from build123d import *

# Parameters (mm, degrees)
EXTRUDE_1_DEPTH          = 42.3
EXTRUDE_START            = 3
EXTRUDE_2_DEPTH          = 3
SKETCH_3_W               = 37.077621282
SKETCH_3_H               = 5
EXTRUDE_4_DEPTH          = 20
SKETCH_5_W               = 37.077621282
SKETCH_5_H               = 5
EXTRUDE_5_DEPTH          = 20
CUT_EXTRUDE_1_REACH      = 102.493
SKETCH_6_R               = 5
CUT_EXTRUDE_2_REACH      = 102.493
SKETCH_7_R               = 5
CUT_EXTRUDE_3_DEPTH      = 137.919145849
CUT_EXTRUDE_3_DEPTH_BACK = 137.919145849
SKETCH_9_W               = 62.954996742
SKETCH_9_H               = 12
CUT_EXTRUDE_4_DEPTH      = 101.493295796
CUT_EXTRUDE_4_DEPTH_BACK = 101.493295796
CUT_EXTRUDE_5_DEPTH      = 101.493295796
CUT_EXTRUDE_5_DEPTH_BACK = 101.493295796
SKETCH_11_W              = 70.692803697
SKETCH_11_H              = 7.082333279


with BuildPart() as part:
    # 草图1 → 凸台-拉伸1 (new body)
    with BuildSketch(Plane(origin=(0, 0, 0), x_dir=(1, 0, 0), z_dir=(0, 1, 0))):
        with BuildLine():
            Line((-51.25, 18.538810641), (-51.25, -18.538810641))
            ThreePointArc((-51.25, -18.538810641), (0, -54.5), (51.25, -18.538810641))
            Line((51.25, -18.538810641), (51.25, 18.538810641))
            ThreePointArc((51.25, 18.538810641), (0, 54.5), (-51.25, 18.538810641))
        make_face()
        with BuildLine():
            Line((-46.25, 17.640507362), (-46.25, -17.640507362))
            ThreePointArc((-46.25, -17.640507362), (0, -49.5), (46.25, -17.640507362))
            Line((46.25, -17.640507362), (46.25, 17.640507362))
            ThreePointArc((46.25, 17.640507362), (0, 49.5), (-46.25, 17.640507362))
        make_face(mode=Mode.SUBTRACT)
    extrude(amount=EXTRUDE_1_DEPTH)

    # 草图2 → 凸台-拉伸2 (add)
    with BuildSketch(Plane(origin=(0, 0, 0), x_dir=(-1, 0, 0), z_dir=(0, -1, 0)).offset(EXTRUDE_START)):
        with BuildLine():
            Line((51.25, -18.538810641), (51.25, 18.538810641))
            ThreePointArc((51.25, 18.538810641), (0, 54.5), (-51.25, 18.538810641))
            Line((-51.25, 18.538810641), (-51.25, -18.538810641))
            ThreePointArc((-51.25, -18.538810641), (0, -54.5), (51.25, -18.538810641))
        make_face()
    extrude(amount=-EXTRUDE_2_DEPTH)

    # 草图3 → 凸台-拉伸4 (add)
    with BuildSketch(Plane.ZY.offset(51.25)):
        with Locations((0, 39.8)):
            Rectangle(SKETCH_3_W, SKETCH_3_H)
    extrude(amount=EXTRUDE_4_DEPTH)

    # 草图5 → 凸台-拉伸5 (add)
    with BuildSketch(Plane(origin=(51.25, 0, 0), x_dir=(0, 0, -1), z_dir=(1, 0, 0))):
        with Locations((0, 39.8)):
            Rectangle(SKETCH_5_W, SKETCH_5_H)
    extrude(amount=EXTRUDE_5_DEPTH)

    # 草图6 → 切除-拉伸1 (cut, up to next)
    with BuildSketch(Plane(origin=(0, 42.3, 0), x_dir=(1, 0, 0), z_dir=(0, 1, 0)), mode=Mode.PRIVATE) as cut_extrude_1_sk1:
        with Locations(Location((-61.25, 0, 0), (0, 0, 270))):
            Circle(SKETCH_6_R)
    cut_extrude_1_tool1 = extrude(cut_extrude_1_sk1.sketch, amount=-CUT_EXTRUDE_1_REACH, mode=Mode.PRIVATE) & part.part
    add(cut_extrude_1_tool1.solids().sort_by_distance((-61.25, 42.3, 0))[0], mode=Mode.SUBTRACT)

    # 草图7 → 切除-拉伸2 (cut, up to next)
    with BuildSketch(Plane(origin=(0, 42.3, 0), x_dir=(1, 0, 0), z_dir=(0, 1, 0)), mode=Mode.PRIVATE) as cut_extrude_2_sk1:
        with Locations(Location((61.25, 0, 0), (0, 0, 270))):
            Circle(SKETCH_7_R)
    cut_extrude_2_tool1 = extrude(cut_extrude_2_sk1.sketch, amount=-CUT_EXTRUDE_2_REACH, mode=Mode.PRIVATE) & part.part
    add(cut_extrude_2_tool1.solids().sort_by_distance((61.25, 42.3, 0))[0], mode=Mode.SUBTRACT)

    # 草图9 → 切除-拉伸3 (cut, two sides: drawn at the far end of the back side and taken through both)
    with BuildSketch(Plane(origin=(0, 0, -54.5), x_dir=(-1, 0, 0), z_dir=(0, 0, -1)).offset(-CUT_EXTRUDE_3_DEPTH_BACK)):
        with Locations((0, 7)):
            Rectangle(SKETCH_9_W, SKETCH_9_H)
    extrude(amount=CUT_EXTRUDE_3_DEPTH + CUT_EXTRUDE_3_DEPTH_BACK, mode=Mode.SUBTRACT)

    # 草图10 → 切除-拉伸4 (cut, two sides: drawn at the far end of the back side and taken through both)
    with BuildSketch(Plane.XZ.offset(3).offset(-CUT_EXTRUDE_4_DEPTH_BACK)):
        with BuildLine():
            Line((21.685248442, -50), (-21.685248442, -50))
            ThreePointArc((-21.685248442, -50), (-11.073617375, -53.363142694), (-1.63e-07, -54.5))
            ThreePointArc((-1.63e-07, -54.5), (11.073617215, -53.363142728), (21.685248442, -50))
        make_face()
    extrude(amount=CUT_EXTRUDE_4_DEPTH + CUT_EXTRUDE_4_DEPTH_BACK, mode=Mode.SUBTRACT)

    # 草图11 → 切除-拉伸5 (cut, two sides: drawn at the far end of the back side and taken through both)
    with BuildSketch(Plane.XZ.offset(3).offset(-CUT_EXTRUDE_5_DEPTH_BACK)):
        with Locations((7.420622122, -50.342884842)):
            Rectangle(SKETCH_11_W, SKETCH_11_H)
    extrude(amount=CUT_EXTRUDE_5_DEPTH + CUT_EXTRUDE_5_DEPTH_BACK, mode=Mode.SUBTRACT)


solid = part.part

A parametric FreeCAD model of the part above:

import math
import FreeCAD as App
import Part
import Sketcher

V = App.Vector

doc = App.newDocument("Part")
body = doc.addObject("PartDesign::Body", "Body")

sketch1 = doc.addObject("Sketcher::SketchObject", "Sketch")
body.addObject(sketch1)
sketch1.AttachmentSupport = (doc.XZ_Plane, [""])
sketch1.MapMode = "FlatFace"
sketch1.addGeometry(Part.LineSegment(V(-51, -19, 0), V(-51, 19, 0)), False)
sketch1.addGeometry(Part.ArcOfCircle(Part.Circle(V(0, 0, 0), V(0, 0, 1), 54), math.radians(20), math.radians(160)), False)
sketch1.addGeometry(Part.LineSegment(V(51, 19, 0), V(51, -19, 0)), False)
sketch1.addGeometry(Part.ArcOfCircle(Part.Circle(V(0, 0, 0), V(0, 0, 1), 54), math.radians(-160), math.radians(-20)), False)
sketch1.addGeometry(Part.LineSegment(V(-46, 18, 0), V(-46, -18, 0)), False)
sketch1.addGeometry(Part.ArcOfCircle(Part.Circle(V(0, 0, 0), V(0, 0, 1), 50), math.radians(-159), math.radians(-21)), False)
sketch1.addGeometry(Part.LineSegment(V(46, -18, 0), V(46, 18, 0)), False)
sketch1.addGeometry(Part.ArcOfCircle(Part.Circle(V(0, 0, 0), V(0, 0, 1), 50), math.radians(21), math.radians(159)), False)
sketch1.addConstraint(Sketcher.Constraint("Coincident", 0, 2, 1, 2))
sketch1.addConstraint(Sketcher.Constraint("Coincident", 1, 1, 2, 1))
sketch1.addConstraint(Sketcher.Constraint("Coincident", 2, 2, 3, 2))
sketch1.addConstraint(Sketcher.Constraint("Coincident", 3, 1, 0, 1))
sketch1.addConstraint(Sketcher.Constraint("Coincident", 4, 2, 5, 1))
sketch1.addConstraint(Sketcher.Constraint("Coincident", 5, 2, 6, 1))
sketch1.addConstraint(Sketcher.Constraint("Coincident", 6, 2, 7, 1))
sketch1.addConstraint(Sketcher.Constraint("Coincident", 7, 2, 4, 1))
sketch1.addConstraint(Sketcher.Constraint("Vertical", 0))
sketch1.addConstraint(Sketcher.Constraint("Vertical", 2))
sketch1.addConstraint(Sketcher.Constraint("Vertical", 4))
sketch1.addConstraint(Sketcher.Constraint("Vertical", 6))
sketch1.addConstraint(Sketcher.Constraint("Coincident", 1, 3, -1, 1))
sketch1.addConstraint(Sketcher.Constraint("Coincident", 3, 3, -1, 1))
sketch1.addConstraint(Sketcher.Constraint("Coincident", 5, 3, -1, 1))
sketch1.addConstraint(Sketcher.Constraint("Coincident", 7, 3, -1, 1))
sketch1.addConstraint(Sketcher.Constraint("Equal", 1, 3))
sketch1.addConstraint(Sketcher.Constraint("Equal", 5, 7))
sketch1.addConstraint(Sketcher.Constraint("Horizontal", 0, 2, 1, 1))
sketch1.addConstraint(Sketcher.Constraint("Horizontal", 4, 2, 5, 2))
sketch1.addConstraint(Sketcher.Constraint("Radius", 1, 54.5))
sketch1.addConstraint(Sketcher.Constraint("Radius", 5, 49.5))
sketch1.addConstraint(Sketcher.Constraint("DistanceX", 3, 1, 4, 2, 5.0))
sketch1.addConstraint(Sketcher.Constraint("DistanceX", 0, 2, 1, 1, 102.5))
pad1 = doc.addObject("PartDesign::Pad", "Pad")
body.addObject(pad1)
pad1.Profile = sketch1
pad1.Length = 42.3
pad1.Reversed = True

sketch2 = doc.addObject("Sketcher::SketchObject", "Sketch001")
body.addObject(sketch2)
sketch2.AttachmentSupport = (doc.XZ_Plane, [""])
sketch2.MapMode = "FlatFace"
sketch2.AttachmentOffset = App.Placement(V(0, 0, 3), App.Rotation())
sketch2.addGeometry(Part.LineSegment(V(-51, 19, 0), V(-51, -19, 0)), False)
sketch2.addGeometry(Part.ArcOfCircle(Part.Circle(V(0, 0, 0), V(0, 0, 1), 54), math.radians(-160), math.radians(-20)), False)
sketch2.addGeometry(Part.LineSegment(V(51, -19, 0), V(51, 19, 0)), False)
sketch2.addGeometry(Part.ArcOfCircle(Part.Circle(V(0, 0, 0), V(0, 0, 1), 54), math.radians(20), math.radians(160)), False)
sketch2.addConstraint(Sketcher.Constraint("Coincident", 0, 2, 1, 1))
sketch2.addConstraint(Sketcher.Constraint("Coincident", 1, 2, 2, 1))
sketch2.addConstraint(Sketcher.Constraint("Coincident", 2, 2, 3, 1))
sketch2.addConstraint(Sketcher.Constraint("Coincident", 3, 2, 0, 1))
sketch2.addConstraint(Sketcher.Constraint("Vertical", 0))
sketch2.addConstraint(Sketcher.Constraint("Vertical", 2))
sketch2.addConstraint(Sketcher.Constraint("Coincident", 1, 3, -1, 1))
sketch2.addConstraint(Sketcher.Constraint("Coincident", 3, 3, -1, 1))
sketch2.addConstraint(Sketcher.Constraint("Equal", 1, 3))
sketch2.addConstraint(Sketcher.Constraint("Horizontal", 0, 2, 1, 2))
sketch2.addConstraint(Sketcher.Constraint("Radius", 1, 54.5))
sketch2.addConstraint(Sketcher.Constraint("DistanceX", 0, 2, 1, 2, 102.5))
pad2 = doc.addObject("PartDesign::Pad", "Pad001")
body.addObject(pad2)
pad2.Profile = sketch2
pad2.Length = 3
pad2.Reversed = True

sketch3 = doc.addObject("Sketcher::SketchObject", "Sketch002")
body.addObject(sketch3)
sketch3.AttachmentSupport = (doc.YZ_Plane, [""])
sketch3.MapMode = "FlatFace"
sketch3.AttachmentOffset = App.Placement(V(0, 0, -51.25), App.Rotation())
sketch3.addGeometry(Part.LineSegment(V(42, -19, 0), V(37, -19, 0)), False)
sketch3.addGeometry(Part.LineSegment(V(37, -19, 0), V(37, 19, 0)), False)
sketch3.addGeometry(Part.LineSegment(V(37, 19, 0), V(42, 19, 0)), False)
sketch3.addGeometry(Part.LineSegment(V(42, 19, 0), V(42, -19, 0)), False)
sketch3.addConstraint(Sketcher.Constraint("Coincident", 0, 2, 1, 1))
sketch3.addConstraint(Sketcher.Constraint("Coincident", 1, 2, 2, 1))
sketch3.addConstraint(Sketcher.Constraint("Coincident", 2, 2, 3, 1))
sketch3.addConstraint(Sketcher.Constraint("Coincident", 3, 2, 0, 1))
sketch3.addConstraint(Sketcher.Constraint("Horizontal", 0))
sketch3.addConstraint(Sketcher.Constraint("Vertical", 1))
sketch3.addConstraint(Sketcher.Constraint("Horizontal", 2))
sketch3.addConstraint(Sketcher.Constraint("Vertical", 3))
sketch3.addConstraint(Sketcher.Constraint("DistanceX", 0, 2, 0, 1, 5.0))
sketch3.addConstraint(Sketcher.Constraint("DistanceX", -1, 1, 0, 2, 37.3))
sketch3.addConstraint(Sketcher.Constraint("DistanceY", 1, 1, 1, 2, 37.077621))
sketch3.addConstraint(Sketcher.Constraint("DistanceY", 0, 2, -1, 1, 18.538811))
pad3 = doc.addObject("PartDesign::Pad", "Pad002")
body.addObject(pad3)
pad3.Profile = sketch3
pad3.Length = 20
pad3.Reversed = True

sketch4 = doc.addObject("Sketcher::SketchObject", "Sketch003")
body.addObject(sketch4)
sketch4.AttachmentSupport = (doc.YZ_Plane, [""])
sketch4.MapMode = "FlatFace"
sketch4.AttachmentOffset = App.Placement(V(0, 0, 51.25), App.Rotation())
sketch4.addGeometry(Part.LineSegment(V(42, 19, 0), V(37, 19, 0)), False)
sketch4.addGeometry(Part.LineSegment(V(37, 19, 0), V(37, -19, 0)), False)
sketch4.addGeometry(Part.LineSegment(V(37, -19, 0), V(42, -19, 0)), False)
sketch4.addGeometry(Part.LineSegment(V(42, -19, 0), V(42, 19, 0)), False)
sketch4.addConstraint(Sketcher.Constraint("Coincident", 0, 2, 1, 1))
sketch4.addConstraint(Sketcher.Constraint("Coincident", 1, 2, 2, 1))
sketch4.addConstraint(Sketcher.Constraint("Coincident", 2, 2, 3, 1))
sketch4.addConstraint(Sketcher.Constraint("Coincident", 3, 2, 0, 1))
sketch4.addConstraint(Sketcher.Constraint("Horizontal", 0))
sketch4.addConstraint(Sketcher.Constraint("Vertical", 1))
sketch4.addConstraint(Sketcher.Constraint("Horizontal", 2))
sketch4.addConstraint(Sketcher.Constraint("Vertical", 3))
sketch4.addConstraint(Sketcher.Constraint("DistanceX", 0, 2, 0, 1, 5.0))
sketch4.addConstraint(Sketcher.Constraint("DistanceX", -1, 1, 0, 2, 37.3))
sketch4.addConstraint(Sketcher.Constraint("DistanceY", 1, 2, 1, 1, 37.077621))
sketch4.addConstraint(Sketcher.Constraint("DistanceY", -1, 1, 0, 2, 18.538811))
pad4 = doc.addObject("PartDesign::Pad", "Pad003")
body.addObject(pad4)
pad4.Profile = sketch4
pad4.Length = 20

sketch5 = doc.addObject("Sketcher::SketchObject", "Sketch004")
body.addObject(sketch5)
sketch5.AttachmentSupport = (doc.XZ_Plane, [""])
sketch5.MapMode = "FlatFace"
sketch5.AttachmentOffset = App.Placement(V(0, 0, -42.3), App.Rotation())
sketch5.addGeometry(Part.Circle(V(-61, 0, 0), V(0, 0, 1), 5), False)
sketch5.addConstraint(Sketcher.Constraint("PointOnObject", 0, 3, -1))
sketch5.addConstraint(Sketcher.Constraint("Diameter", 0, 10.0))
sketch5.addConstraint(Sketcher.Constraint("DistanceX", 0, 3, -1, 1, 61.25))
pocket1 = doc.addObject("PartDesign::Pocket", "Pocket")
body.addObject(pocket1)
pocket1.Profile = sketch5
pocket1.Type = "UpToFirst"
pocket1.Reversed = True

sketch6 = doc.addObject("Sketcher::SketchObject", "Sketch005")
body.addObject(sketch6)
sketch6.AttachmentSupport = (doc.XZ_Plane, [""])
sketch6.MapMode = "FlatFace"
sketch6.AttachmentOffset = App.Placement(V(0, 0, -42.3), App.Rotation())
sketch6.addGeometry(Part.Circle(V(61, 0, 0), V(0, 0, 1), 5), False)
sketch6.addConstraint(Sketcher.Constraint("PointOnObject", 0, 3, -1))
sketch6.addConstraint(Sketcher.Constraint("Diameter", 0, 10.0))
sketch6.addConstraint(Sketcher.Constraint("DistanceX", -1, 1, 0, 3, 61.25))
pocket2 = doc.addObject("PartDesign::Pocket", "Pocket001")
body.addObject(pocket2)
pocket2.Profile = sketch6
pocket2.Type = "UpToFirst"
pocket2.Reversed = True

sketch7 = doc.addObject("Sketcher::SketchObject", "Sketch006")
body.addObject(sketch7)
sketch7.AttachmentSupport = (doc.XY_Plane, [""])
sketch7.MapMode = "FlatFace"
sketch7.AttachmentOffset = App.Placement(V(0, 0, -54.5), App.Rotation())
sketch7.addGeometry(Part.LineSegment(V(31, 13, 0), V(31, 1, 0)), False)
sketch7.addGeometry(Part.LineSegment(V(31, 1, 0), V(-31, 1, 0)), False)
sketch7.addGeometry(Part.LineSegment(V(-31, 1, 0), V(-31, 13, 0)), False)
sketch7.addGeometry(Part.LineSegment(V(-31, 13, 0), V(31, 13, 0)), False)
sketch7.addConstraint(Sketcher.Constraint("Coincident", 0, 2, 1, 1))
sketch7.addConstraint(Sketcher.Constraint("Coincident", 1, 2, 2, 1))
sketch7.addConstraint(Sketcher.Constraint("Coincident", 2, 2, 3, 1))
sketch7.addConstraint(Sketcher.Constraint("Coincident", 3, 2, 0, 1))
sketch7.addConstraint(Sketcher.Constraint("Vertical", 0))
sketch7.addConstraint(Sketcher.Constraint("Horizontal", 1))
sketch7.addConstraint(Sketcher.Constraint("Vertical", 2))
sketch7.addConstraint(Sketcher.Constraint("Horizontal", 3))
sketch7.addConstraint(Sketcher.Constraint("DistanceY", 0, 2, 0, 1, 12.0))
sketch7.addConstraint(Sketcher.Constraint("DistanceY", -1, 1, 0, 2, 1.0))
sketch7.addConstraint(Sketcher.Constraint("DistanceX", -1, 1, 0, 2, 31.477498))
sketch7.addConstraint(Sketcher.Constraint("DistanceX", 1, 2, -1, 1, 31.477498))
pocket3 = doc.addObject("PartDesign::Pocket", "Pocket002")
body.addObject(pocket3)
pocket3.Profile = sketch7
pocket3.Type = "ThroughAll"
pocket3.Midplane = True

sketch8 = doc.addObject("Sketcher::SketchObject", "Sketch007")
body.addObject(sketch8)
sketch8.AttachmentSupport = (doc.XZ_Plane, [""])
sketch8.MapMode = "FlatFace"
sketch8.AttachmentOffset = App.Placement(V(0, 0, 3), App.Rotation())
sketch8.addGeometry(Part.LineSegment(V(22, -50, 0), V(-22, -50, 0)), False)
sketch8.addGeometry(Part.ArcOfCircle(Part.Circle(V(0, 0, 0), V(0, 0, 1), 55), math.radians(-113), math.radians(-90)), False)
sketch8.addGeometry(Part.ArcOfCircle(Part.Circle(V(0, 0, 0), V(0, 0, 1), 54), math.radians(-90), math.radians(-67)), False)
sketch8.addConstraint(Sketcher.Constraint("Coincident", 0, 2, 1, 1))
sketch8.addConstraint(Sketcher.Constraint("Tangent", 1, 2, 2, 1))
sketch8.addConstraint(Sketcher.Constraint("Coincident", 2, 2, 0, 1))
sketch8.addConstraint(Sketcher.Constraint("Horizontal", 0))
sketch8.addConstraint(Sketcher.Constraint("Coincident", 1, 3, -1, 1))
sketch8.addConstraint(Sketcher.Constraint("Equal", 1, 2))
sketch8.addConstraint(Sketcher.Constraint("PointOnObject", 1, 2, -2))
sketch8.addConstraint(Sketcher.Constraint("Radius", 1, 54.5))
sketch8.addConstraint(Sketcher.Constraint("DistanceY", 0, 2, -1, 1, 50.0))
pocket4 = doc.addObject("PartDesign::Pocket", "Pocket003")
body.addObject(pocket4)
pocket4.Profile = sketch8
pocket4.Type = "ThroughAll"
pocket4.Midplane = True

sketch9 = doc.addObject("Sketcher::SketchObject", "Sketch008")
body.addObject(sketch9)
sketch9.AttachmentSupport = (doc.XZ_Plane, [""])
sketch9.MapMode = "FlatFace"
sketch9.AttachmentOffset = App.Placement(V(0, 0, 3), App.Rotation())
sketch9.addGeometry(Part.LineSegment(V(-28, -47, 0), V(-28, -54, 0)), False)
sketch9.addGeometry(Part.LineSegment(V(-28, -54, 0), V(43, -54, 0)), False)
sketch9.addGeometry(Part.LineSegment(V(43, -54, 0), V(43, -47, 0)), False)
sketch9.addGeometry(Part.LineSegment(V(43, -47, 0), V(-28, -47, 0)), False)
sketch9.addConstraint(Sketcher.Constraint("Coincident", 0, 2, 1, 1))
sketch9.addConstraint(Sketcher.Constraint("Coincident", 1, 2, 2, 1))
sketch9.addConstraint(Sketcher.Constraint("Coincident", 2, 2, 3, 1))
sketch9.addConstraint(Sketcher.Constraint("Coincident", 3, 2, 0, 1))
sketch9.addConstraint(Sketcher.Constraint("Vertical", 0))
sketch9.addConstraint(Sketcher.Constraint("Horizontal", 1))
sketch9.addConstraint(Sketcher.Constraint("Vertical", 2))
sketch9.addConstraint(Sketcher.Constraint("Horizontal", 3))
sketch9.addConstraint(Sketcher.Constraint("DistanceX", 1, 1, 1, 2, 70.692804))
sketch9.addConstraint(Sketcher.Constraint("DistanceY", 0, 2, 0, 1, 7.082333))
sketch9.addConstraint(Sketcher.Constraint("DistanceX", 0, 2, -1, 1, 27.92578))
sketch9.addConstraint(Sketcher.Constraint("DistanceY", 0, 2, -1, 1, 53.884051))
pocket5 = doc.addObject("PartDesign::Pocket", "Pocket004")
body.addObject(pocket5)
pocket5.Profile = sketch9
pocket5.Type = "ThroughAll"
pocket5.Midplane = True

doc.recompute()
